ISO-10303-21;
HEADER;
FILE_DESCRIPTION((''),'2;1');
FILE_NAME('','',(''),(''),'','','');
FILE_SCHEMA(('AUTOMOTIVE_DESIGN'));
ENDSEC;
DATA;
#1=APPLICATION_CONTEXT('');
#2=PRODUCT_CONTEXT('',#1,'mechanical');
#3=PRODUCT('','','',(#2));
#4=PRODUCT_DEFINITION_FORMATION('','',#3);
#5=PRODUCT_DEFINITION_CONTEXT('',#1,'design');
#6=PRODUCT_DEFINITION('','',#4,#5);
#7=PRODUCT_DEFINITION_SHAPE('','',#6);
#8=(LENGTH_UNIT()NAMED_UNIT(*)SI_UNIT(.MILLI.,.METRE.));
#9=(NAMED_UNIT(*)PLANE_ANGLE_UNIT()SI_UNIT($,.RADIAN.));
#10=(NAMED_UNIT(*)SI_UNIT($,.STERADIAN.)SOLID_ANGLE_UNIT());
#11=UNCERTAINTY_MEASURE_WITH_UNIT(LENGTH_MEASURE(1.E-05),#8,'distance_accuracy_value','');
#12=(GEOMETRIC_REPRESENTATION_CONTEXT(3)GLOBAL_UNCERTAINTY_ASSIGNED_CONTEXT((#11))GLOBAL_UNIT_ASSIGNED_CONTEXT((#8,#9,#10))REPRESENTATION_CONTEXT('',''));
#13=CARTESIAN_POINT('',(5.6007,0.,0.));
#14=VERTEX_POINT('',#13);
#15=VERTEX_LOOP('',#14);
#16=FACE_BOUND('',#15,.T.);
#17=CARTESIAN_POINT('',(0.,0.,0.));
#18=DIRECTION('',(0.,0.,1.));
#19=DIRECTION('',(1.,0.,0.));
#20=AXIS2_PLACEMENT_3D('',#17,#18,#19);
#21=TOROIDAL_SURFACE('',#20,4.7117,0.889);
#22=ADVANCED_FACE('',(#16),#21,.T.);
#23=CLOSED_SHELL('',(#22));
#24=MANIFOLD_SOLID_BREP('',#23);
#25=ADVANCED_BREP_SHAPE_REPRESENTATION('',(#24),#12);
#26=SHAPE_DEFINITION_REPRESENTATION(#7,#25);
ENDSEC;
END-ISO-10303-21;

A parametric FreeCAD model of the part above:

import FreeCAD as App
import Part
import Sketcher
Q = App.Units.Quantity

doc = App.newDocument("Part")
body = doc.addObject("PartDesign::Body", "Body")

sketch1 = body.newObject("Sketcher::SketchObject", "Sketch")
sketch1.AttachmentSupport = (doc.getObject("YZ_Plane"), [""])
sketch1.MapMode = "FlatFace"
sketch1.addGeometry(Part.Circle(App.Vector(-4.7, 0, 0), App.Vector(0, 0, 1), 0.9), False)
sketch1.addConstraint(Sketcher.Constraint("PointOnObject", 0, 3, -1))
sketch1.addConstraint(Sketcher.Constraint("Diameter", 0, Q("0.07 in")))
sketch1.addConstraint(Sketcher.Constraint("DistanceX", 0, 3, -1, 1, Q("0.1855 in")))
revolution = body.newObject("PartDesign::Revolution", "Revolution")
revolution.Profile = sketch1
revolution.ReferenceAxis = (sketch1, ["V_Axis"])
revolution.Angle = 360

doc.recompute()
